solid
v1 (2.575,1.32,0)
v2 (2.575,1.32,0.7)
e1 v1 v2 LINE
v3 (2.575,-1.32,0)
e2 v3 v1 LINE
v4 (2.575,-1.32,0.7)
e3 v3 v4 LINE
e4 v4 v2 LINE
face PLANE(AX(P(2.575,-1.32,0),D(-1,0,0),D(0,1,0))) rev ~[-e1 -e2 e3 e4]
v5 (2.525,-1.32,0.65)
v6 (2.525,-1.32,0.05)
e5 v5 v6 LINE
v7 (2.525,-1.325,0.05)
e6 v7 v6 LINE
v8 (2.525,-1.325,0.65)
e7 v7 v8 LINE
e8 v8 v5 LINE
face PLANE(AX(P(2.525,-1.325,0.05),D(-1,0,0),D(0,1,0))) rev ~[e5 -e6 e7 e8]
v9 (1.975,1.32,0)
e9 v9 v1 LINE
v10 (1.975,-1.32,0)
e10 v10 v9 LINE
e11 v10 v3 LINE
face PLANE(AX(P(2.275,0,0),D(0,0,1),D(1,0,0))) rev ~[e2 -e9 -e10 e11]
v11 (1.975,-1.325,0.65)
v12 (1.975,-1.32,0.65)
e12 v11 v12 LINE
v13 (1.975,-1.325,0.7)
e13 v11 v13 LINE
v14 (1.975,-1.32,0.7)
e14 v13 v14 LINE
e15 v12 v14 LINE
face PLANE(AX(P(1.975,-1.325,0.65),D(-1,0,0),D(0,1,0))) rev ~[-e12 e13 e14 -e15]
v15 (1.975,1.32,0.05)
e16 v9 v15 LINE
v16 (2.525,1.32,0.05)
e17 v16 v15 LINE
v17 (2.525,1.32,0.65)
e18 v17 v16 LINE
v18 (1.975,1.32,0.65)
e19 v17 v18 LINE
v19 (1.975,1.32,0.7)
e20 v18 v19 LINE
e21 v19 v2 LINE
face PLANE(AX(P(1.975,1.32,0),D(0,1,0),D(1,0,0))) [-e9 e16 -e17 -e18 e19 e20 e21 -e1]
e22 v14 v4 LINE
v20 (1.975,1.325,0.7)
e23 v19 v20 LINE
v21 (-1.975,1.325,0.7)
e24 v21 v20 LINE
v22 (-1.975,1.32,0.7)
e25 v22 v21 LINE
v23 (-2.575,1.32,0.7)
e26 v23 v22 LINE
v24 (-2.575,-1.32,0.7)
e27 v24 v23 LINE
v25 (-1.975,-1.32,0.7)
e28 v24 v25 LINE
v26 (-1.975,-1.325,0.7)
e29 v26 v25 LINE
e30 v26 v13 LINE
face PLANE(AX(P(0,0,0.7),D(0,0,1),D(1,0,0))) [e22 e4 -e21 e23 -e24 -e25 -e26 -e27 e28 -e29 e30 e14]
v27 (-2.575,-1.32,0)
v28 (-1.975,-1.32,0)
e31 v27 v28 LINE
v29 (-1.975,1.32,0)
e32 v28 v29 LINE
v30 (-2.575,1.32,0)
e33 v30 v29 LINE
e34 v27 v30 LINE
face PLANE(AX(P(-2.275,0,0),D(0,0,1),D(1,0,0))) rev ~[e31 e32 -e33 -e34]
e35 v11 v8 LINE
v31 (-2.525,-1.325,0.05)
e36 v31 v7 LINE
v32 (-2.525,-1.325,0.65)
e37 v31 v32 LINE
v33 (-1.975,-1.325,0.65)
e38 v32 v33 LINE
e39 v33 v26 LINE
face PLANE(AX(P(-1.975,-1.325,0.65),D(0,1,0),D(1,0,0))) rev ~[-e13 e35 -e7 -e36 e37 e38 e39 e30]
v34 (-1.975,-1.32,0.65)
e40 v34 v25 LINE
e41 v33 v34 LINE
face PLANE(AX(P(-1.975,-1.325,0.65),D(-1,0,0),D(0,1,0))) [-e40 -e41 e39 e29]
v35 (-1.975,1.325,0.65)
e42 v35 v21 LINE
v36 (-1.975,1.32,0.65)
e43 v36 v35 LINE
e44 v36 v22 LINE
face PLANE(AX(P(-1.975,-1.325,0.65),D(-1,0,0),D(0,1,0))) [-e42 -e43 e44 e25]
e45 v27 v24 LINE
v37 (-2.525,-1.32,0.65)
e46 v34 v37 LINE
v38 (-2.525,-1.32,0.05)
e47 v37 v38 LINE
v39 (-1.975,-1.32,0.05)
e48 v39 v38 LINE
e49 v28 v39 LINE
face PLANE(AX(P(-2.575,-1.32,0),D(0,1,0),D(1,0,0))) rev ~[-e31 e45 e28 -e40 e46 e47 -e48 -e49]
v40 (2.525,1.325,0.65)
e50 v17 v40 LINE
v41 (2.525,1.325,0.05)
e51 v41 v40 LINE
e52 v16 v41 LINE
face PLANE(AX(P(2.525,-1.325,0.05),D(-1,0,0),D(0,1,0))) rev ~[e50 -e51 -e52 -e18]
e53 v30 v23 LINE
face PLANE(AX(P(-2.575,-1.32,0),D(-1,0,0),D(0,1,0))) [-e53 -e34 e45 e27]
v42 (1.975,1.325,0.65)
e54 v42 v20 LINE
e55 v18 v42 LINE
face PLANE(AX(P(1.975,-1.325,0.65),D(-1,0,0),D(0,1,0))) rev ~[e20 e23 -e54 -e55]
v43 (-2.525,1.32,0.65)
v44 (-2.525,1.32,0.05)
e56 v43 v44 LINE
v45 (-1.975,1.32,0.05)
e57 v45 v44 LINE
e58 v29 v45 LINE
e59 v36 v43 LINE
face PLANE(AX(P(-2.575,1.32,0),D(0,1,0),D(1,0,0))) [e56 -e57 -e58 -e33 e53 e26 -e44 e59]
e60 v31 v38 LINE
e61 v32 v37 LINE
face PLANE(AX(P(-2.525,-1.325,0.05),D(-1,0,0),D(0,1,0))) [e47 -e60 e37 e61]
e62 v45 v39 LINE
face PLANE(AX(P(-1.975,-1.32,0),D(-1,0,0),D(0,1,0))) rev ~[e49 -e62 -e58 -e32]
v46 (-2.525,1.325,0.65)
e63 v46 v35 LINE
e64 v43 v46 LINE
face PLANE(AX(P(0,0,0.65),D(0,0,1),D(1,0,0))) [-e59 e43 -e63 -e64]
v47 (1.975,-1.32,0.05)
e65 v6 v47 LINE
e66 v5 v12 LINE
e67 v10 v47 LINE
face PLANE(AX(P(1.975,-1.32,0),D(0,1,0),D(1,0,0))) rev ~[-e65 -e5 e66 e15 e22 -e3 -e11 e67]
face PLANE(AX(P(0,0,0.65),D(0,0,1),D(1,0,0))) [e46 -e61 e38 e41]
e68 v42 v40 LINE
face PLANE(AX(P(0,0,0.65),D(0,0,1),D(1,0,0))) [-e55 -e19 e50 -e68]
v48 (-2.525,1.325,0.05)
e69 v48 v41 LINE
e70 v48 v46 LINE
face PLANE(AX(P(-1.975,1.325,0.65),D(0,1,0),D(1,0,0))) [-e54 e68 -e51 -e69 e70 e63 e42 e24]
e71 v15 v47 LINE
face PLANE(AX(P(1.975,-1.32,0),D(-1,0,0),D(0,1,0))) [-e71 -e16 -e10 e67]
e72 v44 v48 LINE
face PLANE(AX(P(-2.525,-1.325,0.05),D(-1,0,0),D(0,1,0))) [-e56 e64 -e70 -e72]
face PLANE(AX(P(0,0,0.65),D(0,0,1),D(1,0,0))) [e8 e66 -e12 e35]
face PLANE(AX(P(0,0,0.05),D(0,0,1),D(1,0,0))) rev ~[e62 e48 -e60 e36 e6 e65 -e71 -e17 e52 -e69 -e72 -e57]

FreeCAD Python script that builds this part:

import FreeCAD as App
import Part
import Sketcher

V = App.Vector

doc = App.newDocument("Part")
body = doc.addObject("PartDesign::Body", "Body")

# Sketch on XY plane
sketch1 = body.newObject("Sketcher::SketchObject", "Sketch")
sketch1.AttachmentSupport = (doc.getObject("XY_Plane"), [""])
sketch1.MapMode = "FlatFace"
sketch1.addGeometry(Part.LineSegment(V(-2.575, 1.32, 0), V(-2.575, -1.32, 0)), False)
sketch1.addGeometry(Part.LineSegment(V(-2.575, -1.32, 0), V(-1.975, -1.32, 0)), False)
sketch1.addGeometry(Part.LineSegment(V(-1.975, -1.32, 0), V(-1.975, 1.32, 0)), False)
sketch1.addGeometry(Part.LineSegment(V(-1.975, 1.32, 0), V(-2.575, 1.32, 0)), False)
sketch1.addConstraint(Sketcher.Constraint("Coincident", 0, 2, 1, 1))
sketch1.addConstraint(Sketcher.Constraint("Coincident", 1, 2, 2, 1))
sketch1.addConstraint(Sketcher.Constraint("Coincident", 2, 2, 3, 1))
sketch1.addConstraint(Sketcher.Constraint("Coincident", 3, 2, 0, 1))
sketch1.addConstraint(Sketcher.Constraint("Vertical", 0))
sketch1.addConstraint(Sketcher.Constraint("Horizontal", 1))
sketch1.addConstraint(Sketcher.Constraint("Vertical", 2))
sketch1.addConstraint(Sketcher.Constraint("Horizontal", 3))
sketch1.addConstraint(Sketcher.Constraint("DistanceX", 1, 1, 1, 2, 0.6))
sketch1.addConstraint(Sketcher.Constraint("DistanceY", 0, 2, 0, 1, 2.64))
sketch1.addConstraint(Sketcher.Constraint("DistanceY", 0, 2, -1, 1, 1.32))
sketch1.addConstraint(Sketcher.Constraint("DistanceX", 0, 2, -1, 1, 2.575))
pad1 = body.newObject("PartDesign::Pad", "Pad")
pad1.Profile = sketch1
pad1.Length = 0.7
body2 = doc.addObject("PartDesign::Body", "Body001")

# Sketch on XY plane
sketch2 = body2.newObject("Sketcher::SketchObject", "Sketch001")
sketch2.AttachmentSupport = (doc.getObject("XY_Plane001"), [""])
sketch2.MapMode = "FlatFace"
sketch2.addGeometry(Part.LineSegment(V(1.975, 1.32, 0), V(1.975, -1.32, 0)), False)
sketch2.addGeometry(Part.LineSegment(V(1.975, -1.32, 0), V(2.575, -1.32, 0)), False)
sketch2.addGeometry(Part.LineSegment(V(2.575, -1.32, 0), V(2.575, 1.32, 0)), False)
sketch2.addGeometry(Part.LineSegment(V(2.575, 1.32, 0), V(1.975, 1.32, 0)), False)
sketch2.addConstraint(Sketcher.Constraint("Coincident", 0, 2, 1, 1))
sketch2.addConstraint(Sketcher.Constraint("Coincident", 1, 2, 2, 1))
sketch2.addConstraint(Sketcher.Constraint("Coincident", 2, 2, 3, 1))
sketch2.addConstraint(Sketcher.Constraint("Coincident", 3, 2, 0, 1))
sketch2.addConstraint(Sketcher.Constraint("Vertical", 0))
sketch2.addConstraint(Sketcher.Constraint("Horizontal", 1))
sketch2.addConstraint(Sketcher.Constraint("Vertical", 2))
sketch2.addConstraint(Sketcher.Constraint("Horizontal", 3))
sketch2.addConstraint(Sketcher.Constraint("DistanceX", 1, 1, 1, 2, 0.6))
sketch2.addConstraint(Sketcher.Constraint("DistanceY", 0, 2, 0, 1, 2.64))
sketch2.addConstraint(Sketcher.Constraint("DistanceY", 0, 2, -1, 1, 1.32))
sketch2.addConstraint(Sketcher.Constraint("DistanceX", -1, 1, 0, 2, 1.975))
pad2 = body2.newObject("PartDesign::Pad", "Pad001")
pad2.Profile = sketch2
pad2.Length = 0.7
body3 = doc.addObject("PartDesign::Body", "Body002")

# Sketch on XY plane
sketch3 = body3.newObject("Sketcher::SketchObject", "Sketch002")
sketch3.AttachmentSupport = (doc.getObject("XY_Plane002"), [""])
sketch3.MapMode = "FlatFace"
sketch3.AttachmentOffset = App.Placement(V(0, 0, 0.65), App.Rotation())
sketch3.addGeometry(Part.LineSegment(V(-1.975, 1.325, 0), V(-1.975, -1.325, 0)), False)
sketch3.addGeometry(Part.LineSegment(V(-1.975, -1.325, 0), V(1.975, -1.325, 0)), False)
sketch3.addGeometry(Part.LineSegment(V(1.975, -1.325, 0), V(1.975, 1.325, 0)), False)
sketch3.addGeometry(Part.LineSegment(V(1.975, 1.325, 0), V(-1.975, 1.325, 0)), False)
sketch3.addConstraint(Sketcher.Constraint("Coincident", 0, 2, 1, 1))
sketch3.addConstraint(Sketcher.Constraint("Coincident", 1, 2, 2, 1))
sketch3.addConstraint(Sketcher.Constraint("Coincident", 2, 2, 3, 1))
sketch3.addConstraint(Sketcher.Constraint("Coincident", 3, 2, 0, 1))
sketch3.addConstraint(Sketcher.Constraint("Vertical", 0))
sketch3.addConstraint(Sketcher.Constraint("Horizontal", 1))
sketch3.addConstraint(Sketcher.Constraint("Vertical", 2))
sketch3.addConstraint(Sketcher.Constraint("Horizontal", 3))
sketch3.addConstraint(Sketcher.Constraint("Symmetric", 0, 2, 2, 2, -1, 1))
sketch3.addConstraint(Sketcher.Constraint("DistanceX", 1, 1, 1, 2, 3.95))
sketch3.addConstraint(Sketcher.Constraint("DistanceY", 0, 2, 0, 1, 2.65))
pad3 = body3.newObject("PartDesign::Pad", "Pad002")
pad3.Profile = sketch3
pad3.Length = 0.05
body4 = doc.addObject("PartDesign::Body", "Body003")

# Sketch on XY plane
sketch4 = body4.newObject("Sketcher::SketchObject", "Sketch003")
sketch4.AttachmentSupport = (doc.getObject("XY_Plane003"), [""])
sketch4.MapMode = "FlatFace"
sketch4.AttachmentOffset = App.Placement(V(0, 0, 0.05), App.Rotation())
sketch4.addGeometry(Part.LineSegment(V(-2.525, 1.325, 0), V(-2.525, -1.325, 0)), False)
sketch4.addGeometry(Part.LineSegment(V(-2.525, -1.325, 0), V(2.525, -1.325, 0)), False)
sketch4.addGeometry(Part.LineSegment(V(2.525, -1.325, 0), V(2.525, 1.325, 0)), False)
sketch4.addGeometry(Part.LineSegment(V(2.525, 1.325, 0), V(-2.525, 1.325, 0)), False)
sketch4.addConstraint(Sketcher.Constraint("Coincident", 0, 2, 1, 1))
sketch4.addConstraint(Sketcher.Constraint("Coincident", 1, 2, 2, 1))
sketch4.addConstraint(Sketcher.Constraint("Coincident", 2, 2, 3, 1))
sketch4.addConstraint(Sketcher.Constraint("Coincident", 3, 2, 0, 1))
sketch4.addConstraint(Sketcher.Constraint("Vertical", 0))
sketch4.addConstraint(Sketcher.Constraint("Horizontal", 1))
sketch4.addConstraint(Sketcher.Constraint("Vertical", 2))
sketch4.addConstraint(Sketcher.Constraint("Horizontal", 3))
sketch4.addConstraint(Sketcher.Constraint("Symmetric", 0, 2, 2, 2, -1, 1))
sketch4.addConstraint(Sketcher.Constraint("DistanceX", 1, 1, 1, 2, 5.05))
sketch4.addConstraint(Sketcher.Constraint("DistanceY", 0, 2, 0, 1, 2.65))
pad4 = body4.newObject("PartDesign::Pad", "Pad003")
pad4.Profile = sketch4
pad4.Length = 0.6
doc.recompute()

boolean = body4.newObject("PartDesign::Boolean", "Boolean")
boolean.Type = "Fuse"
boolean.addObjects([body])
doc.recompute()

boolean2 = body4.newObject("PartDesign::Boolean", "Boolean001")
boolean2.Type = "Fuse"
boolean2.addObjects([body2])
doc.recompute()

boolean3 = body4.newObject("PartDesign::Boolean", "Boolean002")
boolean3.Type = "Fuse"
boolean3.addObjects([body3])

doc.recompute()
